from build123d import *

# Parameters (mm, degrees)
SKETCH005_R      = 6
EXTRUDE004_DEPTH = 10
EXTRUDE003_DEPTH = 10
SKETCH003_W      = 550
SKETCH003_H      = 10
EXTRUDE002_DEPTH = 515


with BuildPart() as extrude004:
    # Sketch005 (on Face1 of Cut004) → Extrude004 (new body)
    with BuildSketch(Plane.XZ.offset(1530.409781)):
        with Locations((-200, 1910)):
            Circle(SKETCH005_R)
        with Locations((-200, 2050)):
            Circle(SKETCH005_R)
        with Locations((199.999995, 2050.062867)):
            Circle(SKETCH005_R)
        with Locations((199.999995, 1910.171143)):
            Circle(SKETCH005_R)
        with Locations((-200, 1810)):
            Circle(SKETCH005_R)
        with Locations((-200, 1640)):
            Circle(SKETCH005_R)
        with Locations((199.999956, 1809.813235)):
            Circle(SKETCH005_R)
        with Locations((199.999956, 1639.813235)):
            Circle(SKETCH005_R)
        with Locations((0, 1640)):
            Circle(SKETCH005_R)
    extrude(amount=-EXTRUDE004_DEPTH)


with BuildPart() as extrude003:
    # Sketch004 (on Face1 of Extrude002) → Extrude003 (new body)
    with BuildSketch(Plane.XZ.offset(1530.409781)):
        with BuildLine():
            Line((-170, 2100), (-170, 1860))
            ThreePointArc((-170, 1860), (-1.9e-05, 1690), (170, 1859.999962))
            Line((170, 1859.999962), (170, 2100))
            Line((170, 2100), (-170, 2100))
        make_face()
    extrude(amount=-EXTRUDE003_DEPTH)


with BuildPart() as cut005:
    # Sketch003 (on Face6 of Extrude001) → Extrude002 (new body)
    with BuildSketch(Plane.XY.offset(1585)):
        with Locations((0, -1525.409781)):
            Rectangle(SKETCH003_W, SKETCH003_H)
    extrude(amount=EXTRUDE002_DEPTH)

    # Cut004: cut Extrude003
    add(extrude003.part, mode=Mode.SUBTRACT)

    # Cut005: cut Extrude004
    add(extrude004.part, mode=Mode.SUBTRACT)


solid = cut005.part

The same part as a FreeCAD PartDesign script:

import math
import FreeCAD as App
import Part
import Sketcher
Q = App.Units.Quantity


def add_polygon(sketch, points):
    """Adds a closed chain of lines whose ends are joined by coincident constraints."""
    first, n = sketch.GeometryCount, len(points)
    for a, b in zip(points, points[1:] + points[:1]):
        sketch.addGeometry(Part.LineSegment(App.Vector(*a, 0), App.Vector(*b, 0)), False)
    for i in range(n):
        sketch.addConstraint(Sketcher.Constraint("Coincident", first + i, 2, first + (i + 1) % n, 1))

doc = App.newDocument("Part")
params = doc.addObject("Spreadsheet::Sheet", "Params")
for row, (alias, value) in enumerate([
    ("sketch1_diameter", "12 mm"),
    ("pad1_length", "10 mm"),
    ("sketch2_radius", "170 mm"),
    ("sketch2_height", "240 mm"),
    ("pad2_length", "10 mm"),
    ("sketch3_width", "550 mm"),
    ("sketch3_height", "10 mm"),
    ("pad3_length", "515 mm"),
], start=1):
    params.set(f"A{row}", alias)
    params.set(f"B{row}", "=" + value)
    params.setAlias(f"B{row}", alias)

body = doc.addObject("PartDesign::Body", "Body")
body.AllowCompound = True

# Sketch on XZ plane
sketch1 = body.newObject("Sketcher::SketchObject", "Sketch")
sketch1.AttachmentSupport = (doc.getObject("XZ_Plane"), [""])
sketch1.MapMode = "FlatFace"
sketch1.AttachmentOffset = App.Placement(App.Vector(0, 0, 1530.409781), App.Rotation())
sketch1.addGeometry(Part.Circle(App.Vector(-200, 1910, 0), App.Vector(0, 0, 1), 6), False)
sketch1.addGeometry(Part.Circle(App.Vector(-200, 2050, 0), App.Vector(0, 0, 1), 6), False)
sketch1.addGeometry(Part.Circle(App.Vector(199.999995, 2050.062867, 0), App.Vector(0, 0, 1), 6), False)
sketch1.addGeometry(Part.Circle(App.Vector(199.999995, 1910.171143, 0), App.Vector(0, 0, 1), 6), False)
sketch1.addGeometry(Part.Circle(App.Vector(-200, 1810, 0), App.Vector(0, 0, 1), 6), False)
sketch1.addGeometry(Part.Circle(App.Vector(-200, 1640, 0), App.Vector(0, 0, 1), 6), False)
sketch1.addGeometry(Part.Circle(App.Vector(199.999956, 1809.813235, 0), App.Vector(0, 0, 1), 6), False)
sketch1.addGeometry(Part.Circle(App.Vector(199.999956, 1639.813235, 0), App.Vector(0, 0, 1), 6), False)
sketch1.addGeometry(Part.Circle(App.Vector(0, 1640, 0), App.Vector(0, 0, 1), 6), False)
sketch1.addConstraint(Sketcher.Constraint("Equal", 0, 1))
sketch1.addConstraint(Sketcher.Constraint("Equal", 1, 2))
sketch1.addConstraint(Sketcher.Constraint("Equal", 2, 3))
sketch1.addConstraint(Sketcher.Constraint("Equal", 3, 4))
sketch1.addConstraint(Sketcher.Constraint("Equal", 4, 5))
sketch1.addConstraint(Sketcher.Constraint("Equal", 5, 6))
sketch1.addConstraint(Sketcher.Constraint("Equal", 6, 7))
sketch1.addConstraint(Sketcher.Constraint("Equal", 7, 8))
sketch1.addConstraint(Sketcher.Constraint("PointOnObject", 8, 3, -2))
sketch1.addConstraint(Sketcher.Constraint("Horizontal", 5, 3, 8, 3))
sketch1.addConstraint(Sketcher.Constraint("Vertical", 0, 3, 1, 3))
sketch1.addConstraint(Sketcher.Constraint("Vertical", 2, 3, 3, 3))
sketch1.addConstraint(Sketcher.Constraint("Vertical", 1, 3, 4, 3))
sketch1.addConstraint(Sketcher.Constraint("Vertical", 4, 3, 5, 3))
sketch1.addConstraint(Sketcher.Constraint("Vertical", 6, 3, 7, 3))
sketch1.addConstraint(Sketcher.Constraint("Diameter", 0, Q("12 mm")))
sketch1.addConstraint(Sketcher.Constraint("DistanceX", 0, 3, -1, 1, Q("200 mm")))
sketch1.addConstraint(Sketcher.Constraint("DistanceY", -1, 1, 0, 3, Q("1910 mm")))
sketch1.addConstraint(Sketcher.Constraint("DistanceY", -1, 1, 1, 3, Q("2050 mm")))
sketch1.addConstraint(Sketcher.Constraint("DistanceY", -1, 1, 4, 3, Q("1810 mm")))
sketch1.addConstraint(Sketcher.Constraint("DistanceY", -1, 1, 5, 3, Q("1640 mm")))
sketch1.addConstraint(Sketcher.Constraint("DistanceY", 7, 3, 6, 3, Q("170 mm")))
sketch1.addConstraint(Sketcher.Constraint("DistanceY", 7, 3, 2, 3, Q("410.249632 mm")))
sketch1.addConstraint(Sketcher.Constraint("DistanceX", -1, 1, 2, 3, Q("199.999995 mm")))
sketch1.addConstraint(Sketcher.Constraint("DistanceY", -1, 1, 2, 3, Q("2050.062867 mm")))
sketch1.addConstraint(Sketcher.Constraint("DistanceY", -1, 1, 3, 3, Q("1910.171143 mm")))
sketch1.addConstraint(Sketcher.Constraint("DistanceX", -1, 1, 6, 3, Q("199.999956 mm")))
sketch1.setExpression("Constraints[15]", "Params.sketch1_diameter")
pad1 = body.newObject("PartDesign::Pad", "Pad")
pad1.Profile = sketch1
pad1.setExpression("Length", "Params.pad1_length")
pad1.Reversed = True
body2 = doc.addObject("PartDesign::Body", "Body001")

# Sketch on XZ plane
sketch2 = body2.newObject("Sketcher::SketchObject", "Sketch001")
sketch2.AttachmentSupport = (doc.getObject("XZ_Plane001"), [""])
sketch2.MapMode = "FlatFace"
sketch2.AttachmentOffset = App.Placement(App.Vector(0, 0, 1530.409781), App.Rotation())
sketch2.addGeometry(Part.LineSegment(App.Vector(-170, 2100, 0), App.Vector(-170, 1860, 0)), False)
sketch2.addGeometry(Part.ArcOfCircle(Part.Circle(App.Vector(0, 1860, 0), App.Vector(0, 0, 1), 170), math.radians(180), math.radians(359.999987)), False)
sketch2.addGeometry(Part.LineSegment(App.Vector(170, 1859.999962, 0), App.Vector(170, 2100, 0)), False)
sketch2.addGeometry(Part.LineSegment(App.Vector(170, 2100, 0), App.Vector(-170, 2100, 0)), False)
sketch2.addConstraint(Sketcher.Constraint("Coincident", 0, 2, 1, 1))
sketch2.addConstraint(Sketcher.Constraint("Coincident", 1, 2, 2, 1))
sketch2.addConstraint(Sketcher.Constraint("Coincident", 2, 2, 3, 1))
sketch2.addConstraint(Sketcher.Constraint("Coincident", 3, 2, 0, 1))
sketch2.addConstraint(Sketcher.Constraint("Vertical", 0))
sketch2.addConstraint(Sketcher.Constraint("Vertical", 2))
sketch2.addConstraint(Sketcher.Constraint("Horizontal", 3))
sketch2.addConstraint(Sketcher.Constraint("PointOnObject", 1, 3, -2))
sketch2.addConstraint(Sketcher.Constraint("Radius", 1, Q("170 mm")))
sketch2.addConstraint(Sketcher.Constraint("DistanceY", 0, 2, 0, 1, Q("240 mm")))
sketch2.addConstraint(Sketcher.Constraint("DistanceY", -1, 1, 1, 3, Q("1860 mm")))
sketch2.addConstraint(Sketcher.Constraint("DistanceY", -1, 1, 0, 2, Q("1860 mm")))
sketch2.addConstraint(Sketcher.Constraint("DistanceY", 2, 1, 2, 2, Q("240.000038 mm")))
sketch2.setExpression("Constraints[8]", "Params.sketch2_radius")
sketch2.setExpression("Constraints[9]", "Params.sketch2_height")
pad2 = body2.newObject("PartDesign::Pad", "Pad001")
pad2.Profile = sketch2
pad2.setExpression("Length", "Params.pad2_length")
pad2.Reversed = True
body3 = doc.addObject("PartDesign::Body", "Body002")

# Sketch on XY plane
sketch3 = body3.newObject("Sketcher::SketchObject", "Sketch002")
sketch3.AttachmentSupport = (doc.getObject("XY_Plane002"), [""])
sketch3.MapMode = "FlatFace"
sketch3.AttachmentOffset = App.Placement(App.Vector(0, 0, 1585), App.Rotation())
add_polygon(sketch3, [(-275, -1520.409781), (-275, -1530.409781), (275, -1530.409781), (275, -1520.409781)])  # lines 0-3
sketch3.addConstraint(Sketcher.Constraint("Vertical", 0))
sketch3.addConstraint(Sketcher.Constraint("Horizontal", 1))
sketch3.addConstraint(Sketcher.Constraint("Vertical", 2))
sketch3.addConstraint(Sketcher.Constraint("Horizontal", 3))
sketch3.addConstraint(Sketcher.Constraint("DistanceX", 1, 1, 1, 2, Q("550 mm")))
sketch3.addConstraint(Sketcher.Constraint("DistanceY", 0, 2, 0, 1, Q("10 mm")))
sketch3.addConstraint(Sketcher.Constraint("DistanceX", 0, 2, -1, 1, Q("275 mm")))
sketch3.addConstraint(Sketcher.Constraint("DistanceY", 0, 2, -1, 1, Q("1530.409781 mm")))
sketch3.setExpression("Constraints[8]", "Params.sketch3_width")
sketch3.setExpression("Constraints[9]", "Params.sketch3_height")
pad3 = body3.newObject("PartDesign::Pad", "Pad002")
pad3.Profile = sketch3
pad3.setExpression("Length", "Params.pad3_length")
doc.recompute()

boolean = body3.newObject("PartDesign::Boolean", "Boolean")
boolean.Type = "Cut"
boolean.addObjects([body2])
doc.recompute()

boolean2 = body3.newObject("PartDesign::Boolean", "Boolean001")
boolean2.Type = "Cut"
boolean2.addObjects([body])

doc.recompute()
